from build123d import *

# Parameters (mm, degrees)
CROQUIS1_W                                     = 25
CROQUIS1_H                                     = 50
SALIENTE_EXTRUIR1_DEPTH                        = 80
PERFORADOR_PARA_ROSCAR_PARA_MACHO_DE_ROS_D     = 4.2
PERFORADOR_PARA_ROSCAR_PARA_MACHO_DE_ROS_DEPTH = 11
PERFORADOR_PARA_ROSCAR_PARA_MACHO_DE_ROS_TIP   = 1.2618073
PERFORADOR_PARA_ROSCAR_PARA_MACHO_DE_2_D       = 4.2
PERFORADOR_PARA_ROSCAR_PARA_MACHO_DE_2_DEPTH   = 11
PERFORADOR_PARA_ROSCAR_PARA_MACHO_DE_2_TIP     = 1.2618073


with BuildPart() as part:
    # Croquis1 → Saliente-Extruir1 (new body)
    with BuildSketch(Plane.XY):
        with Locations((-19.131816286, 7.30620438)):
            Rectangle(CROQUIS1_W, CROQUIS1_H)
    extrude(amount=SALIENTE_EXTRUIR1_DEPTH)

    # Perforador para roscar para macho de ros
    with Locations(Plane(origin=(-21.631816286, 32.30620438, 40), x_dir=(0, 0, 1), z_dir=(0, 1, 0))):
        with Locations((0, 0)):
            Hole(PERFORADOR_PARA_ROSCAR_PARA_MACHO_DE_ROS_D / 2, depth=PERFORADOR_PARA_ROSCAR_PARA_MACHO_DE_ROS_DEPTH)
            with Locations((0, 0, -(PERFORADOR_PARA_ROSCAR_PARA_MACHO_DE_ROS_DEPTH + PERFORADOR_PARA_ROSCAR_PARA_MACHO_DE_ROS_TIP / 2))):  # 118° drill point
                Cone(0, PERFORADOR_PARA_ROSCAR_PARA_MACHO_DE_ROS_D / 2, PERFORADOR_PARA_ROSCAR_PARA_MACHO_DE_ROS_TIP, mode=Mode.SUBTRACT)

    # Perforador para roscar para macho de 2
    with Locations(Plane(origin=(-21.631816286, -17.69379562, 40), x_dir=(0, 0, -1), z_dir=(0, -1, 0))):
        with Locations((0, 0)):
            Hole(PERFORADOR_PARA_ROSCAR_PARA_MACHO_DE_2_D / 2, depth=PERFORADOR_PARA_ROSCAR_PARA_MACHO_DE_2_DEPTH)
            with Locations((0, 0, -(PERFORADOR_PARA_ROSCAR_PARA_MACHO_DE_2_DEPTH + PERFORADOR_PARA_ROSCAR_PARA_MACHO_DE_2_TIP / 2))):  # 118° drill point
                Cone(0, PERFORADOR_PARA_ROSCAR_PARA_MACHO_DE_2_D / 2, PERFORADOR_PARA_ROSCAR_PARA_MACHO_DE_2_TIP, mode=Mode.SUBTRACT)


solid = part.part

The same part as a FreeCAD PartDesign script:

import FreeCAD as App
import Part
import Sketcher
from FreeCAD import Vector
Q = App.Units.Quantity

doc = App.newDocument("Part")
body = doc.addObject("PartDesign::Body", "Body")

# Sketch on XY plane
sketch1 = body.newObject("Sketcher::SketchObject", "Sketch")
sketch1.AttachmentSupport = (doc.getObject("XY_Plane"), [""])
sketch1.MapMode = "FlatFace"
sketch1.addGeometry([
    Part.LineSegment(Vector(-32, 32, 0), Vector(-32, -18, 0)),
    Part.LineSegment(Vector(-32, -18, 0), Vector(-7, -18, 0)),
    Part.LineSegment(Vector(-7, -18, 0), Vector(-7, 32, 0)),
    Part.LineSegment(Vector(-7, 32, 0), Vector(-32, 32, 0)),
], False)
sketch1.addConstraint([
    Sketcher.Constraint("Coincident", 0, 2, 1, 1),
    Sketcher.Constraint("Coincident", 1, 2, 2, 1),
    Sketcher.Constraint("Coincident", 2, 2, 3, 1),
    Sketcher.Constraint("Coincident", 3, 2, 0, 1),
    Sketcher.Constraint("Vertical", 0),
    Sketcher.Constraint("Horizontal", 1),
    Sketcher.Constraint("Vertical", 2),
    Sketcher.Constraint("Horizontal", 3),
    Sketcher.Constraint("DistanceX", 1, 1, 1, 2, Q("25 mm")),
    Sketcher.Constraint("DistanceY", 0, 2, 0, 1, Q("50 mm")),
    Sketcher.Constraint("DistanceX", 0, 2, -1, 1, Q("31.631816 mm")),
    Sketcher.Constraint("DistanceY", 0, 2, -1, 1, Q("17.693796 mm")),
])
pad1 = body.newObject("PartDesign::Pad", "Pad")
pad1.Profile = sketch1
pad1.Length = 80

# Sketch on XZ plane
sketch2 = body.newObject("Sketcher::SketchObject", "Sketch001")
sketch2.AttachmentSupport = (doc.getObject("XZ_Plane"), [""])
sketch2.MapMode = "FlatFace"
sketch2.AttachmentOffset = App.Placement(Vector(0, 0, -32.306204), App.Rotation())
sketch2.addGeometry(Part.Circle(Vector(-21.6, 40, 0), Vector(0, 0, 1), 2.1), False)
sketch2.addConstraint([
    Sketcher.Constraint("Diameter", 0, Q("4.2 mm")),
    Sketcher.Constraint("DistanceY", -1, 1, 0, 3, Q("40 mm")),
    Sketcher.Constraint("DistanceX", 0, 3, -1, 1, Q("21.631816 mm")),
])
doc.recompute()
hole = body.newObject("PartDesign::Hole", "Hole")
hole.Profile = sketch2
hole.ThreadType = "None"
hole.Diameter = 4.2
hole.DepthType = "Dimension"
hole.Depth = 11
hole.DrillPoint = "Angled"
hole.DrillPointAngle = 118
hole.Reversed = True

# Sketch on XZ plane
sketch3 = body.newObject("Sketcher::SketchObject", "Sketch002")
sketch3.AttachmentSupport = (doc.getObject("XZ_Plane"), [""])
sketch3.MapMode = "FlatFace"
sketch3.AttachmentOffset = App.Placement(Vector(0, 0, 17.693796), App.Rotation())
sketch3.addGeometry(Part.Circle(Vector(-21.6, 40, 0), Vector(0, 0, 1), 2.1), False)
sketch3.addConstraint([
    Sketcher.Constraint("Diameter", 0, Q("4.2 mm")),
    Sketcher.Constraint("DistanceY", -1, 1, 0, 3, Q("40 mm")),
    Sketcher.Constraint("DistanceX", 0, 3, -1, 1, Q("21.631816 mm")),
])
doc.recompute()
hole2 = body.newObject("PartDesign::Hole", "Hole001")
hole2.Profile = sketch3
hole2.ThreadType = "None"
hole2.Diameter = 4.2
hole2.DepthType = "Dimension"
hole2.Depth = 11
hole2.DrillPoint = "Angled"
hole2.DrillPointAngle = 118

doc.recompute()
